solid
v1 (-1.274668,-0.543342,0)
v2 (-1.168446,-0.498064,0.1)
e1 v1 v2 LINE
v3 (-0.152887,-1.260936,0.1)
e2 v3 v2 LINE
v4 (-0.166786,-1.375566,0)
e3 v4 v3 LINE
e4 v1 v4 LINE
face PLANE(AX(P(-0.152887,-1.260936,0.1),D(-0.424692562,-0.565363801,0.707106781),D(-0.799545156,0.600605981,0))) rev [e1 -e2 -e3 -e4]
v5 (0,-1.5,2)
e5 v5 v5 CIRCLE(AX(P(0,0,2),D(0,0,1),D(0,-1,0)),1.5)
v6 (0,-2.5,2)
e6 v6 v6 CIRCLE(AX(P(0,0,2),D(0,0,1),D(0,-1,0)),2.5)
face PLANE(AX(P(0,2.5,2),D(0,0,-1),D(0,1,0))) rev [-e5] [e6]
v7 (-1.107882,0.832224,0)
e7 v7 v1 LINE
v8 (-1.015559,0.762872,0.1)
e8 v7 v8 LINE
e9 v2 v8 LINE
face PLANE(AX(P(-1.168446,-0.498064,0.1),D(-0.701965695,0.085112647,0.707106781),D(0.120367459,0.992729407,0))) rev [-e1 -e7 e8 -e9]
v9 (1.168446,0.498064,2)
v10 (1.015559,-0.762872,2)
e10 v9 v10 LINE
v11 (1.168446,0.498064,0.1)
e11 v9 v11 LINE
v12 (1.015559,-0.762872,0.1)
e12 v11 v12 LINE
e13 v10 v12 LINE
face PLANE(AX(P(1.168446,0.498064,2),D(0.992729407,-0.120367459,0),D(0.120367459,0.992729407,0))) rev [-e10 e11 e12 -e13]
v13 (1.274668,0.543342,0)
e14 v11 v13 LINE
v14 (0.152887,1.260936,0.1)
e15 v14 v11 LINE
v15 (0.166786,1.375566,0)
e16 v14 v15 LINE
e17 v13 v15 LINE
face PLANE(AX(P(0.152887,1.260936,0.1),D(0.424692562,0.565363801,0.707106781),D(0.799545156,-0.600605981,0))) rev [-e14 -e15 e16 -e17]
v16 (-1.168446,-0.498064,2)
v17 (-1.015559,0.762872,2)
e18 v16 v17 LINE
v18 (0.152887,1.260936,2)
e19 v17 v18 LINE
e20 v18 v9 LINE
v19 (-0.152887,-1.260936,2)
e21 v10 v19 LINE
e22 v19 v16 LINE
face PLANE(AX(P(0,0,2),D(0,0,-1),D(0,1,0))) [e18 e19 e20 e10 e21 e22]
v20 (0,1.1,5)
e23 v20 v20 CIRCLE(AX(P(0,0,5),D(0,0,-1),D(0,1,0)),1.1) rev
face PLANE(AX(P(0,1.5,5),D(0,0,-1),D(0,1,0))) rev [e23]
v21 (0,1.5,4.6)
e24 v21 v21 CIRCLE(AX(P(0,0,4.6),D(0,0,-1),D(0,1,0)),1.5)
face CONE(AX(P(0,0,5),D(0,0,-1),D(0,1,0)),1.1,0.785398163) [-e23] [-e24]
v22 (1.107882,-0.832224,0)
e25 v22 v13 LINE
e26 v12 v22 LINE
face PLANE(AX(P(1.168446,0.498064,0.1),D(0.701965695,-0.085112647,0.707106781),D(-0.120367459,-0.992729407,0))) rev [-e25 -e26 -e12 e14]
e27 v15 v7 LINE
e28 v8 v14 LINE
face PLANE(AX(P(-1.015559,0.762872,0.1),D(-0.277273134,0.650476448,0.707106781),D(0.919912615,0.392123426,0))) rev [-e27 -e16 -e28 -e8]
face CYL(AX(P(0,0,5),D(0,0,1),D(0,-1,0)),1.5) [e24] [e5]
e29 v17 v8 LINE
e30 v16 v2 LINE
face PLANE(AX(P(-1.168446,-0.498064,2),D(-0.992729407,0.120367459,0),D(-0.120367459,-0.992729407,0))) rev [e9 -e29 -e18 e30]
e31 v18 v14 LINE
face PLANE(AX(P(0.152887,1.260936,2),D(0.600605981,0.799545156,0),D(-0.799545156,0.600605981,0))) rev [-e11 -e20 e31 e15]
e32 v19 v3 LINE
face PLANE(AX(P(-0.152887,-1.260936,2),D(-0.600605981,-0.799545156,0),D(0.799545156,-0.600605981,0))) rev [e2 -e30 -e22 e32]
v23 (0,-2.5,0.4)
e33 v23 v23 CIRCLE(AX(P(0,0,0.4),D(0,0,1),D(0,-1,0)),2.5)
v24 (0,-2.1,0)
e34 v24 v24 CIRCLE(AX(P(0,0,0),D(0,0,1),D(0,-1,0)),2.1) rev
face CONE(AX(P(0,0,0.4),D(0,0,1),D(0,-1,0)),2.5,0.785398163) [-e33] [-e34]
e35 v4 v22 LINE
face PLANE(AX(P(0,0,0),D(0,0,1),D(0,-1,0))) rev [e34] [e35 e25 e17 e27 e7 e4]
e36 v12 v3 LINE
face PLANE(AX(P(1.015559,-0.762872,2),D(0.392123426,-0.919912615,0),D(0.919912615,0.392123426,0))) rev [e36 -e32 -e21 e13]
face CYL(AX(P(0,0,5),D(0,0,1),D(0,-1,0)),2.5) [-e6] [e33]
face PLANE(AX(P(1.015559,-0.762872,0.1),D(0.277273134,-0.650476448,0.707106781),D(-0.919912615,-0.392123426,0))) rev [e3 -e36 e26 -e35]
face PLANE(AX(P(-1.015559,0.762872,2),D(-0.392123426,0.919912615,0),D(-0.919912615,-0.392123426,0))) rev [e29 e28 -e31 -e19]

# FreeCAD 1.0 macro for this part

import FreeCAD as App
import Part
import Sketcher


def edges_at(feature, points):
    """Names of the edges that pass closest to the given points."""
    edges = feature.Shape.Edges
    near = lambda p: min(range(len(edges)), key=lambda i: edges[i].distToShape(Part.Vertex(*p))[0])
    return sorted({f"Edge{near(p) + 1}" for p in points})


def add_polygon(sketch, points):
    """Adds a closed chain of lines whose ends are joined by coincident constraints."""
    first, n = sketch.GeometryCount, len(points)
    for a, b in zip(points, points[1:] + points[:1]):
        sketch.addGeometry(Part.LineSegment(App.Vector(*a, 0), App.Vector(*b, 0)), False)
    for i in range(n):
        sketch.addConstraint(Sketcher.Constraint("Coincident", first + i, 2, first + (i + 1) % n, 1))

doc = App.newDocument("Part")
body = doc.addObject("PartDesign::Body", "Body")

# Sketch on YZ plane
sketch1 = body.newObject("Sketcher::SketchObject", "Sketch")
sketch1.AttachmentSupport = (doc.getObject("YZ_Plane"), [""])
sketch1.MapMode = "FlatFace"
add_polygon(sketch1, [(2.5, 0), (2.5, 2), (1.5, 2), (1.5, 5), (0, 5), (0, 0)])  # lines 0-5
sketch1.addConstraint([
    Sketcher.Constraint("Vertical", 0),
    Sketcher.Constraint("Horizontal", 1),
    Sketcher.Constraint("Vertical", 2),
    Sketcher.Constraint("Horizontal", 3),
    Sketcher.Constraint("Vertical", 4),
    Sketcher.Constraint("Horizontal", 5),
    Sketcher.Constraint("Coincident", 4, 2, -1, 1),
    Sketcher.Constraint("DistanceX", 1, 2, 1, 1, 1.0),
    Sketcher.Constraint("DistanceY", 0, 1, 0, 2, 2.0),
    Sketcher.Constraint("DistanceY", 2, 1, 2, 2, 3.0),
    Sketcher.Constraint("DistanceX", 3, 2, 3, 1, 1.5),
])
revolution = body.newObject("PartDesign::Revolution", "Revolution")
revolution.Profile = sketch1
revolution.ReferenceAxis = (sketch1, ["V_Axis"])
revolution.Angle = 360

# Sketch on XY plane
sketch2 = body.newObject("Sketcher::SketchObject", "Sketch001")
sketch2.AttachmentSupport = (doc.getObject("XY_Plane"), [""])
sketch2.MapMode = "FlatFace"
add_polygon(sketch2, [(-1.168446, -0.498064), (-1.015559, 0.762872), (0.152887, 1.260936), (1.168446, 0.498064), (1.015559, -0.762872), (-0.152887, -1.260936)])  # lines 0-5
sketch2.addConstraint([
    Sketcher.Constraint("Symmetric", 0, 2, 3, 2, -1, 1),
    Sketcher.Constraint("Symmetric", 1, 2, 4, 2, -1, 1),
    Sketcher.Constraint("Symmetric", 2, 2, 5, 2, -1, 1),
    Sketcher.Constraint("Equal", 0, 1),
    Sketcher.Constraint("Equal", 1, 2),
    Sketcher.Constraint("DistanceY", 4, 2, 2, 2, 1.758999),
    Sketcher.Constraint("Distance", 0, 1.270171),
    Sketcher.Constraint("DistanceX", 0, 2, -1, 1, 1.015559),
    Sketcher.Constraint("DistanceX", 1, 2, 2, 2, 1.015559),
])
pocket1 = body.newObject("PartDesign::Pocket", "Pocket")
pocket1.Profile = sketch2
pocket1.Length = 2
pocket1.Reversed = True
doc.recompute()

chamfer = body.newObject("PartDesign::Chamfer", "Chamfer")
chamfer.Base = (pocket1, edges_at(pocket1, [(0, -1.5, 5), (0, -2.5, 0)]))
chamfer.Size = 0.4
doc.recompute()

chamfer2 = body.newObject("PartDesign::Chamfer", "Chamfer001")
chamfer2.Base = (chamfer, edges_at(chamfer, [
    (-0.661, -0.879, 0),
    (-1.092, 0.132, 0),
    (-0.431, 1.012, 0),
    (0.661, 0.879, 0),
    (1.092, -0.132, 0),
    (0.431, -1.012, 0),
]))
chamfer2.Size = 0.1

doc.recompute()
